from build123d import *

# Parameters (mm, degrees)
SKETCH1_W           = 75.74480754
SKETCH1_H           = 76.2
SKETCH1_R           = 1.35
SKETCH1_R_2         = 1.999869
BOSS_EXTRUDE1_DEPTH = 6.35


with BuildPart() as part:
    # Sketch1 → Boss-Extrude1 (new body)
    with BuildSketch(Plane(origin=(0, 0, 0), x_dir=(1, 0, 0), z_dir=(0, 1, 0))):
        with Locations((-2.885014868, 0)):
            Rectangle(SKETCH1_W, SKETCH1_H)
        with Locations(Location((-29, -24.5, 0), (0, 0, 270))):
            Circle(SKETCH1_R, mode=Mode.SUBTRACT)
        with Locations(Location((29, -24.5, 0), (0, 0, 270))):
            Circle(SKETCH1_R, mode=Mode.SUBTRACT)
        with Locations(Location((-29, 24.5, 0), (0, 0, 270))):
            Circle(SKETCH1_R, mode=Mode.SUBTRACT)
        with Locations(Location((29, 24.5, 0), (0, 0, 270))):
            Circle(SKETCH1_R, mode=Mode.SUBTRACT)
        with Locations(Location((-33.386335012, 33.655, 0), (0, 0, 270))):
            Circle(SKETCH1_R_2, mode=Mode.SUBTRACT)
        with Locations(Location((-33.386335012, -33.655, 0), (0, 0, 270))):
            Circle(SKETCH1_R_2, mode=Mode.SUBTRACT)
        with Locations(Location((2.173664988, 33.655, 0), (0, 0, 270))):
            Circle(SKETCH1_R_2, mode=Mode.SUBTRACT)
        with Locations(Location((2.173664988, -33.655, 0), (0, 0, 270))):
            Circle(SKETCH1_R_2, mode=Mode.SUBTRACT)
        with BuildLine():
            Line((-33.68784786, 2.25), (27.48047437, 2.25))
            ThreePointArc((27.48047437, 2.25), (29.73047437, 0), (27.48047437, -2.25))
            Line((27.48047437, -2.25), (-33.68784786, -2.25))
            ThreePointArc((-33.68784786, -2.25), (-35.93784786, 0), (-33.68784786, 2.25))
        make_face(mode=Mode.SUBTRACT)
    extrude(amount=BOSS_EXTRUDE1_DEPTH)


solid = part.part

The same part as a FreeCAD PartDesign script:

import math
import FreeCAD as App
import Part
import Sketcher
from FreeCAD import Vector
Q = App.Units.Quantity

doc = App.newDocument("Part")
body = doc.addObject("PartDesign::Body", "Body")

# Sketch on XZ plane
sketch1 = body.newObject("Sketcher::SketchObject", "Sketch")
sketch1.AttachmentSupport = (doc.getObject("XZ_Plane"), [""])
sketch1.MapMode = "FlatFace"
sketch1.addGeometry([
    Part.LineSegment(Vector(-40.8, -38.1, 0), Vector(-40.8, 38.1, 0)),  # 0
    Part.LineSegment(Vector(-40.8, 38.1, 0), Vector(35, 38.1, 0)),  # 1
    Part.LineSegment(Vector(35, 38.1, 0), Vector(35, -38.1, 0)),  # 2
    Part.LineSegment(Vector(35, -38.1, 0), Vector(-40.8, -38.1, 0)),  # 3
    Part.Circle(Vector(-33.4, 33.7, 0), Vector(0, 0, 1), 2),  # 4
    Part.Circle(Vector(-29, 24.5, 0), Vector(0, 0, 1), 1.4),  # 5
    Part.ArcOfCircle(Part.Circle(Vector(-33.7, 0, 0), Vector(0, 0, 1), 2.2), math.radians(90), math.radians(270)),  # 6
    Part.LineSegment(Vector(-33.7, -2.2, 0), Vector(27.5, -2.2, 0)),  # 7
    Part.ArcOfCircle(Part.Circle(Vector(27.5, 0, 0), Vector(0, 0, 1), 2.2), math.radians(-90), math.radians(90)),  # 8
    Part.LineSegment(Vector(27.5, 2.2, 0), Vector(-33.7, 2.2, 0)),  # 9
    Part.Circle(Vector(2.2, 33.7, 0), Vector(0, 0, 1), 2),  # 10
    Part.Circle(Vector(29, 24.5, 0), Vector(0, 0, 1), 1.4),  # 11
    Part.Circle(Vector(-29, -24.5, 0), Vector(0, 0, 1), 1.4),  # 12
    Part.Circle(Vector(-33.4, -33.7, 0), Vector(0, 0, 1), 2),  # 13
    Part.Circle(Vector(2.2, -33.7, 0), Vector(0, 0, 1), 2),  # 14
    Part.Circle(Vector(29, -24.5, 0), Vector(0, 0, 1), 1.4),  # 15
], False)
sketch1.addConstraint([
    Sketcher.Constraint("Coincident", 0, 2, 1, 1),
    Sketcher.Constraint("Coincident", 1, 2, 2, 1),
    Sketcher.Constraint("Coincident", 2, 2, 3, 1),
    Sketcher.Constraint("Coincident", 3, 2, 0, 1),
    Sketcher.Constraint("Tangent", 6, 2, 7, 1),
    Sketcher.Constraint("Tangent", 7, 2, 8, 1),
    Sketcher.Constraint("Tangent", 8, 2, 9, 1),
    Sketcher.Constraint("Tangent", 9, 2, 6, 1),
    Sketcher.Constraint("Vertical", 0),
    Sketcher.Constraint("Horizontal", 1),
    Sketcher.Constraint("Vertical", 2),
    Sketcher.Constraint("Horizontal", 3),
    Sketcher.Constraint("Horizontal", 7),
    Sketcher.Constraint("Horizontal", 9),
    Sketcher.Constraint("Equal", 4, 10),
    Sketcher.Constraint("Equal", 5, 11),
    Sketcher.Constraint("Equal", 11, 12),
    Sketcher.Constraint("Equal", 10, 13),
    Sketcher.Constraint("Equal", 13, 14),
    Sketcher.Constraint("Equal", 12, 15),
    Sketcher.Constraint("Symmetric", 11, 3, 12, 3, -1, 1),
    Sketcher.Constraint("Symmetric", 5, 3, 15, 3, -1, 1),
    Sketcher.Constraint("Symmetric", 5, 3, 11, 3, -2),
    Sketcher.Constraint("Symmetric", 4, 3, 13, 3, -1),
    Sketcher.Constraint("Symmetric", 10, 3, 14, 3, -1),
    Sketcher.Constraint("PointOnObject", 6, 3, -1),
    Sketcher.Constraint("Horizontal", 4, 3, 10, 3),
    Sketcher.Constraint("Diameter", 5, Q("2.7 mm")),
    Sketcher.Constraint("Radius", 6, Q("2.25 mm")),
    Sketcher.Constraint("DistanceY", 0, 1, 0, 2, Q("76.2 mm")),
    Sketcher.Constraint("DistanceX", 5, 3, -1, 1, Q("29 mm")),
    Sketcher.Constraint("DistanceY", 12, 3, 5, 3, Q("49 mm")),
    Sketcher.Constraint("DistanceY", -1, 1, 0, 2, Q("38.1 mm")),
    Sketcher.Constraint("DistanceX", 4, 3, 10, 3, Q("35.56 mm")),
    Sketcher.Constraint("DistanceY", 13, 3, 4, 3, Q("67.31 mm")),
    Sketcher.Constraint("Diameter", 4, Q("3.999738 mm")),
    Sketcher.Constraint("DistanceX", 1, 1, 1, 2, Q("75.744808 mm")),
    Sketcher.Constraint("DistanceX", 7, 1, 7, 2, Q("61.168322 mm")),
    Sketcher.Constraint("DistanceX", 0, 2, -1, 1, Q("40.757419 mm")),
    Sketcher.Constraint("DistanceX", 4, 3, 8, 3, Q("60.866809 mm")),
    Sketcher.Constraint("DistanceX", 0, 2, 6, 3, Q("7.069571 mm")),
])
pad1 = body.newObject("PartDesign::Pad", "Pad")
pad1.Profile = sketch1
pad1.Length = 6.35
pad1.Reversed = True

doc.recompute()
